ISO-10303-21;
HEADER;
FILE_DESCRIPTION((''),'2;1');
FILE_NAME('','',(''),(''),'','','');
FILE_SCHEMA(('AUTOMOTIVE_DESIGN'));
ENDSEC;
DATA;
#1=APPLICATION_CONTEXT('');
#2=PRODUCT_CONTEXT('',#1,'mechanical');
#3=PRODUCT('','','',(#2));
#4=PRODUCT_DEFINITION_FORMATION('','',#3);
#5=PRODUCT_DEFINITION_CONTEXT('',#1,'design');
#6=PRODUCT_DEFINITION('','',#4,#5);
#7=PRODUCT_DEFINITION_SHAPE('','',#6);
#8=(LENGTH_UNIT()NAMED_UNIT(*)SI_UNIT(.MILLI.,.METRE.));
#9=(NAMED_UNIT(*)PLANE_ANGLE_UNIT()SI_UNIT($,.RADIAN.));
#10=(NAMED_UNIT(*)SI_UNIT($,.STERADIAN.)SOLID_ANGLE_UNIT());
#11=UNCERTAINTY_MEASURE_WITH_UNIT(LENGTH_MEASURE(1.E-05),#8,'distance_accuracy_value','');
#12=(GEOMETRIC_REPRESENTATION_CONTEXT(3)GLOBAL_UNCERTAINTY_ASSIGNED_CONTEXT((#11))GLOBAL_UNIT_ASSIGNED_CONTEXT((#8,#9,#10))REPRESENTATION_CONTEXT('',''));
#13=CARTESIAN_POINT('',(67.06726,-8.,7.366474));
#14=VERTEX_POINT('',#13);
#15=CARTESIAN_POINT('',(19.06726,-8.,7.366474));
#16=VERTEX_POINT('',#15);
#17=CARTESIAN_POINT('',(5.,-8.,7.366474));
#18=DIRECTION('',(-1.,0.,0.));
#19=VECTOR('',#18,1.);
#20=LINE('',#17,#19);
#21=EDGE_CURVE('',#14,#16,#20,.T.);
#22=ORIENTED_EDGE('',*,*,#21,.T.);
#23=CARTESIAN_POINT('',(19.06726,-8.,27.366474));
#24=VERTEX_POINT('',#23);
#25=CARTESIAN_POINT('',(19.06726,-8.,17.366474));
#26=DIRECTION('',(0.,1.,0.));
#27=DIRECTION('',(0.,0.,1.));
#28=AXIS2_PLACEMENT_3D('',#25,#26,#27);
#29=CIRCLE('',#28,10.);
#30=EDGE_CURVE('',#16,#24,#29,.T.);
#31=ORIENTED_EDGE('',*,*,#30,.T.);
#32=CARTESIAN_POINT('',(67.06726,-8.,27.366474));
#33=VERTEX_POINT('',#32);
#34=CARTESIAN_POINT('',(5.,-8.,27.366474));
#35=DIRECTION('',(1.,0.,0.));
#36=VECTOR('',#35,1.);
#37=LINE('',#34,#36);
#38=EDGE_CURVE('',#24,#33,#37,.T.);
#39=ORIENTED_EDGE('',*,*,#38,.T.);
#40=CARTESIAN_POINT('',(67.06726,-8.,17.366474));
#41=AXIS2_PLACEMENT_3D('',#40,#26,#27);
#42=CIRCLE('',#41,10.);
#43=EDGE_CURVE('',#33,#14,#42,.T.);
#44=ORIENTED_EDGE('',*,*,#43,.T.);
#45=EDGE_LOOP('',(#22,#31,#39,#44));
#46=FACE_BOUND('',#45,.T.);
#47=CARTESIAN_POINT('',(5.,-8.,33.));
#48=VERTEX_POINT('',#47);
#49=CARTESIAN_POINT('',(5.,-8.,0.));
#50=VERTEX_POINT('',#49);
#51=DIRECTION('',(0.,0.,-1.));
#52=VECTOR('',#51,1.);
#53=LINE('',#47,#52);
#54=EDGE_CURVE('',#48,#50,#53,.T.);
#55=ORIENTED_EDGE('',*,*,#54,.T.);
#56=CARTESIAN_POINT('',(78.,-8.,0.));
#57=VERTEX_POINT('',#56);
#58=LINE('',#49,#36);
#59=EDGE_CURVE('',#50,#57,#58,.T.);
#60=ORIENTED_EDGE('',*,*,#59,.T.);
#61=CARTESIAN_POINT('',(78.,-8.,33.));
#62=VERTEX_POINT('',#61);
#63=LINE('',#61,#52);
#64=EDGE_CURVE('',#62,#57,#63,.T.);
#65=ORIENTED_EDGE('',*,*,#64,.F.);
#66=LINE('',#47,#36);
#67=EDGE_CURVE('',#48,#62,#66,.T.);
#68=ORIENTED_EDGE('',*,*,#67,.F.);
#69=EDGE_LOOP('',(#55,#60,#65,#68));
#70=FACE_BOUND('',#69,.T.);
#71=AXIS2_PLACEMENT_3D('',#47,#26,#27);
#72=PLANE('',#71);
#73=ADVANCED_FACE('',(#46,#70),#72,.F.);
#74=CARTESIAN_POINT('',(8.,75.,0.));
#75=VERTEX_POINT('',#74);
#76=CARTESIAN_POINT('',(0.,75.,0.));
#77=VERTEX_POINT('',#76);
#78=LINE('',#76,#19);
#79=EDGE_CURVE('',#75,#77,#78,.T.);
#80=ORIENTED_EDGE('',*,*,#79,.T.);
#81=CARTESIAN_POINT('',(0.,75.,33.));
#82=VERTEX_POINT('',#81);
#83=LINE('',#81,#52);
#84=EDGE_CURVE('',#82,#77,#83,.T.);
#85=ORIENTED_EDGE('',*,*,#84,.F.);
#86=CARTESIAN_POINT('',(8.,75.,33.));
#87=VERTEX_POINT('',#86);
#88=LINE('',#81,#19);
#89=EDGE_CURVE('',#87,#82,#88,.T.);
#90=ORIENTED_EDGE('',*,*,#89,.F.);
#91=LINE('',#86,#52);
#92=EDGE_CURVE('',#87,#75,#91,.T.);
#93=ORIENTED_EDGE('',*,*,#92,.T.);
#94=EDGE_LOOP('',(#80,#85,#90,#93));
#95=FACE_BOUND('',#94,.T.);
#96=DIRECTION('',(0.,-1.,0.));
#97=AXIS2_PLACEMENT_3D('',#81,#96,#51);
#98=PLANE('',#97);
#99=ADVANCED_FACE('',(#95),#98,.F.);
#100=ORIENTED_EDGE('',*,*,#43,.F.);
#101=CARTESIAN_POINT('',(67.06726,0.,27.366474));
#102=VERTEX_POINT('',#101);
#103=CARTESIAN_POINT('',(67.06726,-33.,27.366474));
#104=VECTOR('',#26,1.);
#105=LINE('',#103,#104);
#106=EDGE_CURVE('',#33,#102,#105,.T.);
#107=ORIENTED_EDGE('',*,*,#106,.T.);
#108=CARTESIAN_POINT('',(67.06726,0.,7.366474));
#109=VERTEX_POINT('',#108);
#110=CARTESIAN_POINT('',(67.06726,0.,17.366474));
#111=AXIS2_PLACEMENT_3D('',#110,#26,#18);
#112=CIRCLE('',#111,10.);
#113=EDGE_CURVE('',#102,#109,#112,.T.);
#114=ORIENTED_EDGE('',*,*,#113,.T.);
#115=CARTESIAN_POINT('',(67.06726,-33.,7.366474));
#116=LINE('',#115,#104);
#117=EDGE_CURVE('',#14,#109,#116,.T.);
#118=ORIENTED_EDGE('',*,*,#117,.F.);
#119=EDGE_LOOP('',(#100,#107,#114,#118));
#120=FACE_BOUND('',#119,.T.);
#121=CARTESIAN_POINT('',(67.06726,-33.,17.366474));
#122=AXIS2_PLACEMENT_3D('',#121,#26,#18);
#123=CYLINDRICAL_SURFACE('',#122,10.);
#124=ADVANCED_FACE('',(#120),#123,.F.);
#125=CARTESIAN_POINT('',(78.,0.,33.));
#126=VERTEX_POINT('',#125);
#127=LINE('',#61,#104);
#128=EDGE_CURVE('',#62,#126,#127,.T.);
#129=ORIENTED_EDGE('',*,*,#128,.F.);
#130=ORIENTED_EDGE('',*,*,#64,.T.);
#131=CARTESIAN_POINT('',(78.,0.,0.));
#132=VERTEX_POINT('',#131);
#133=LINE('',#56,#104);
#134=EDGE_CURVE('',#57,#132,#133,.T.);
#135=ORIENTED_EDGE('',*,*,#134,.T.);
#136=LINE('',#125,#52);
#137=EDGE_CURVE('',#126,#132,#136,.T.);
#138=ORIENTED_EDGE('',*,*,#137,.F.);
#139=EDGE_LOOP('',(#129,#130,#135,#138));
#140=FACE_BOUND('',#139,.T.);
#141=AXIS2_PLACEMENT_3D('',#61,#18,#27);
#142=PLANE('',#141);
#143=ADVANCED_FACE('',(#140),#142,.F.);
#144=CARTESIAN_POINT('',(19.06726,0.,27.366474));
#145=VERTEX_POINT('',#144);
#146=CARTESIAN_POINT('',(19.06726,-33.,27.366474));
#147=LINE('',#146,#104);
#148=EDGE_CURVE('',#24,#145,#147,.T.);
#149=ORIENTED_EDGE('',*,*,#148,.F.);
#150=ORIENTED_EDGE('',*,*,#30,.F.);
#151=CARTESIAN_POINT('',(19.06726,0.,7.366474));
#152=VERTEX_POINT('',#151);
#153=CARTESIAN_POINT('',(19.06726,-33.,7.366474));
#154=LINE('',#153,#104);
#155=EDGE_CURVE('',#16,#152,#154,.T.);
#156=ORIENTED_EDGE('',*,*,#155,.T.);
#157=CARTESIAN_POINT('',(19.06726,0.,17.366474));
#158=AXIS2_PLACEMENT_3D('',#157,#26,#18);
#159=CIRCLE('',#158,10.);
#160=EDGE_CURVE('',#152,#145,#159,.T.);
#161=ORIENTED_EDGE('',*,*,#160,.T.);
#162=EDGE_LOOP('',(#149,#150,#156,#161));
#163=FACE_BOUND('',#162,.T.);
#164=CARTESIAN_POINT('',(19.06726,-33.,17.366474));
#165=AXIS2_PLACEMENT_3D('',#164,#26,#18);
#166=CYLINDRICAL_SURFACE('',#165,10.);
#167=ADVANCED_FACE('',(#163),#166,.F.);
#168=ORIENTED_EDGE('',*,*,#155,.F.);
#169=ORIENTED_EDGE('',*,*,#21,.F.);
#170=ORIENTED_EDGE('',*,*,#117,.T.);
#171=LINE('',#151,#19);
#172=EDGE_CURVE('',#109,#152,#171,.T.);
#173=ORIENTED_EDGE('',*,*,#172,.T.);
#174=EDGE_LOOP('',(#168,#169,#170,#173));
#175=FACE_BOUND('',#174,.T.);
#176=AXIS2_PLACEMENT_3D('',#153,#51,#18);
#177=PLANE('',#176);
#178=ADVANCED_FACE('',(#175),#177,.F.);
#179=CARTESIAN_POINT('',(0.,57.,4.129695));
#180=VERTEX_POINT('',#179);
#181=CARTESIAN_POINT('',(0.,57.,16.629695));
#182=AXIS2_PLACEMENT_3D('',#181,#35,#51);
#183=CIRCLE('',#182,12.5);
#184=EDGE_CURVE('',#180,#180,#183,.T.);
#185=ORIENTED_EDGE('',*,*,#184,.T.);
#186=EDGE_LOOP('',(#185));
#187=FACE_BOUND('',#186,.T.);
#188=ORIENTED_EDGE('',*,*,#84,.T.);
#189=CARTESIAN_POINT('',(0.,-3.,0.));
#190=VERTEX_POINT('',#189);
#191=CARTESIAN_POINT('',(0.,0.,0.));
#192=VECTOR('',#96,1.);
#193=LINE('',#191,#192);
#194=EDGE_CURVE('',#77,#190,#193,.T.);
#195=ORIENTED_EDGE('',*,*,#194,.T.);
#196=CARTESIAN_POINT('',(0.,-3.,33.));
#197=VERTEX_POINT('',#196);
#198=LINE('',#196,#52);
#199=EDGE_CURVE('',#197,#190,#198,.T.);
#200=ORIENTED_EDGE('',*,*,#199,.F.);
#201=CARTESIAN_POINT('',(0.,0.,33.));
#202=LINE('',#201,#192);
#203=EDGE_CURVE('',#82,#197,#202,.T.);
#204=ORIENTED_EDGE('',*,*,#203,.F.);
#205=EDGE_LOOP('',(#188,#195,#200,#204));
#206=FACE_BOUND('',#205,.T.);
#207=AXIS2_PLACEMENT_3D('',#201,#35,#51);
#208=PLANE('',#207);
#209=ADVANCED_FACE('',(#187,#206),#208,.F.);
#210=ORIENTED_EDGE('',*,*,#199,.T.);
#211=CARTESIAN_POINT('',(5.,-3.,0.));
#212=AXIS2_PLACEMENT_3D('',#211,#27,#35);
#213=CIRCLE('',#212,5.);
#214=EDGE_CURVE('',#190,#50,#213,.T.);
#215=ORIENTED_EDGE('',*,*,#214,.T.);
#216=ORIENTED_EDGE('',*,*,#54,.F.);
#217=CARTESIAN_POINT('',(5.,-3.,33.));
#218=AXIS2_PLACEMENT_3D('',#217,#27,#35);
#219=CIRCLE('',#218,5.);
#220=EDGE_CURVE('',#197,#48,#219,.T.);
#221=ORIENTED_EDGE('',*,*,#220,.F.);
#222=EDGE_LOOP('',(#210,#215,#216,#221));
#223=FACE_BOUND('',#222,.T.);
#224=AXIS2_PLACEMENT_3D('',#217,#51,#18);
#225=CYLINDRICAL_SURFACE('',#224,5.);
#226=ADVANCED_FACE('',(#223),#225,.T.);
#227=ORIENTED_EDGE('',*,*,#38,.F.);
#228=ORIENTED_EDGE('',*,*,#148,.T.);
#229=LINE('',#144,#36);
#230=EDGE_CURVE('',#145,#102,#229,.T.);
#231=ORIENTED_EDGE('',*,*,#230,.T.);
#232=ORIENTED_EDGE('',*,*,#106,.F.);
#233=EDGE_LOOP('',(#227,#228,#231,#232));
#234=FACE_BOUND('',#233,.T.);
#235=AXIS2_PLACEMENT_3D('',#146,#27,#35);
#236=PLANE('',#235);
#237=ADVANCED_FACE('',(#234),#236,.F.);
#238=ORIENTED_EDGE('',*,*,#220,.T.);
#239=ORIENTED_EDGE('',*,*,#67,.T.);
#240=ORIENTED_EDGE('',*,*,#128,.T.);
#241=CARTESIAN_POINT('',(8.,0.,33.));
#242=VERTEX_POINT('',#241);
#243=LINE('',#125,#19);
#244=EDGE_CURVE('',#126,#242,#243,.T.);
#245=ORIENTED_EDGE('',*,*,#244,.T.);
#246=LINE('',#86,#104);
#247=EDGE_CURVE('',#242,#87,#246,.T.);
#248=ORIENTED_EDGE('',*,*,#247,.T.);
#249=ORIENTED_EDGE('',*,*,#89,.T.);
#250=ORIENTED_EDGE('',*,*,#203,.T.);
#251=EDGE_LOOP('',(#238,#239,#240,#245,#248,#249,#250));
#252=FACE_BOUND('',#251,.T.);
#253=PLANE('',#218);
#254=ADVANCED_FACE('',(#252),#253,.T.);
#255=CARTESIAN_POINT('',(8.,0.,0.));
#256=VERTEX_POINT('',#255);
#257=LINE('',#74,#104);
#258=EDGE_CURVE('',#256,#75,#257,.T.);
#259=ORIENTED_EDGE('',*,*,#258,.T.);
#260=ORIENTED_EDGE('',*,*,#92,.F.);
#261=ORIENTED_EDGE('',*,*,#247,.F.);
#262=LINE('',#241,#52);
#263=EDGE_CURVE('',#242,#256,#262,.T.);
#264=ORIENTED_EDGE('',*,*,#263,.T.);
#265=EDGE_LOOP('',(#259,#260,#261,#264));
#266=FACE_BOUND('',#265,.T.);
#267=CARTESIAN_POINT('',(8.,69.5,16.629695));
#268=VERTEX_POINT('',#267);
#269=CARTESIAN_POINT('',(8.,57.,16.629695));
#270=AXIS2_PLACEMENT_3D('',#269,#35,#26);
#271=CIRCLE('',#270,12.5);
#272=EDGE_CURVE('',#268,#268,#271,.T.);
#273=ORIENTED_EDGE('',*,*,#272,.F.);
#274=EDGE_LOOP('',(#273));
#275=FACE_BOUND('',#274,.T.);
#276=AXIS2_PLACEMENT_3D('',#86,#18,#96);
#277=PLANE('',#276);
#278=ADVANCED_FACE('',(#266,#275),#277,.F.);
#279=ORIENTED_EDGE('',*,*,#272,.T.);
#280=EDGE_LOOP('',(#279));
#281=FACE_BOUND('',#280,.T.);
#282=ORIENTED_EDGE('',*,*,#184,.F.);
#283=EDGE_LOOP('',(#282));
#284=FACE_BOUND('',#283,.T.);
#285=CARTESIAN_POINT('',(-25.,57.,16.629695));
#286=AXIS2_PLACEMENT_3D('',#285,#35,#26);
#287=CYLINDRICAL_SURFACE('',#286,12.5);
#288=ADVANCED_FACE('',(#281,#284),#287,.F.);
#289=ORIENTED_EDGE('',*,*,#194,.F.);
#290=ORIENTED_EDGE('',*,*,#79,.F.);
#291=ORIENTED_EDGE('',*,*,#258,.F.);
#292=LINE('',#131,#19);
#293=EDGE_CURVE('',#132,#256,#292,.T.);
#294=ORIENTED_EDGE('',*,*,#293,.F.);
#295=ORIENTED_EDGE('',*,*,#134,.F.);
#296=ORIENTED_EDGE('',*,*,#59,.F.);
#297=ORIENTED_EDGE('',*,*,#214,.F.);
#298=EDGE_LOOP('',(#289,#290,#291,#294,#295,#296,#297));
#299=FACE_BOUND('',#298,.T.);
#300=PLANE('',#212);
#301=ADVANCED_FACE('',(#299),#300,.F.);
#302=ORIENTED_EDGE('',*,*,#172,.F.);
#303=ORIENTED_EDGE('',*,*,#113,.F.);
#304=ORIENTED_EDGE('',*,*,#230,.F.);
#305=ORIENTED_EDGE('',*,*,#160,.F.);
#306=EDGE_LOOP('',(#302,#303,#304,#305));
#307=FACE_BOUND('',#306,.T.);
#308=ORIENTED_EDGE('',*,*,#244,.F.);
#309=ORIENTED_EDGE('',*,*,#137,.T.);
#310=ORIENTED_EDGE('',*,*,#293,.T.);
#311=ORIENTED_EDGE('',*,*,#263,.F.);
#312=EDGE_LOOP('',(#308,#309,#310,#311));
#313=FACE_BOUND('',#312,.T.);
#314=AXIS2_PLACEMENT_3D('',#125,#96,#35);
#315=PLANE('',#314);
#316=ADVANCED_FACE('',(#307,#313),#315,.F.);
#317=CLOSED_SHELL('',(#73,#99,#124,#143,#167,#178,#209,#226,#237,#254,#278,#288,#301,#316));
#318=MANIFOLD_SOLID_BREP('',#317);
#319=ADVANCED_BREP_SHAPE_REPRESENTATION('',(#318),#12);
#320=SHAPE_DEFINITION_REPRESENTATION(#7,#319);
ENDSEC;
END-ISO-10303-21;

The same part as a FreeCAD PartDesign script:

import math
import FreeCAD as App
import Part
import Sketcher

V = App.Vector
Q = App.Units.Quantity

doc = App.newDocument("Part")
body = doc.addObject("PartDesign::Body", "Body")

# Sketch on XY plane
sketch1 = body.newObject("Sketcher::SketchObject", "Sketch")
sketch1.AttachmentSupport = (doc.getObject("XY_Plane"), [""])
sketch1.MapMode = "FlatFace"
sketch1.addGeometry([
    Part.LineSegment(V(8, 75, 0), V(0, 75, 0)),  # 0
    Part.LineSegment(V(0, 75, 0), V(0, -3, 0)),  # 1
    Part.ArcOfCircle(Part.Circle(V(5, -3, 0), V(0, 0, 1), 5), math.radians(180), math.radians(270)),  # 2
    Part.LineSegment(V(5, -8, 0), V(78, -8, 0)),  # 3
    Part.LineSegment(V(78, -8, 0), V(78, 0, 0)),  # 4
    Part.LineSegment(V(78, 0, 0), V(8, 0, 0)),  # 5
    Part.LineSegment(V(8, 0, 0), V(8, 75, 0)),  # 6
], False)
sketch1.addConstraint([
    Sketcher.Constraint("Coincident", 0, 2, 1, 1),
    Sketcher.Constraint("Tangent", 1, 2, 2, 1),
    Sketcher.Constraint("Tangent", 2, 2, 3, 1),
    Sketcher.Constraint("Coincident", 3, 2, 4, 1),
    Sketcher.Constraint("Coincident", 4, 2, 5, 1),
    Sketcher.Constraint("Coincident", 5, 2, 6, 1),
    Sketcher.Constraint("Coincident", 6, 2, 0, 1),
    Sketcher.Constraint("Horizontal", 0),
    Sketcher.Constraint("Vertical", 1),
    Sketcher.Constraint("Horizontal", 3),
    Sketcher.Constraint("Vertical", 4),
    Sketcher.Constraint("Horizontal", 5),
    Sketcher.Constraint("Vertical", 6),
    Sketcher.Constraint("PointOnObject", 0, 2, -2),
    Sketcher.Constraint("PointOnObject", 4, 2, -1),
    Sketcher.Constraint("Equal", 0, 4),
    Sketcher.Constraint("Radius", 2, Q("5 mm")),
    Sketcher.Constraint("DistanceX", 0, 2, 0, 1, Q("8 mm")),
    Sketcher.Constraint("DistanceX", 3, 1, 3, 2, Q("73 mm")),
    Sketcher.Constraint("DistanceY", 1, 2, 1, 1, Q("78 mm")),
])
pad1 = body.newObject("PartDesign::Pad", "Pad")
pad1.Profile = sketch1
pad1.Length = 33

# Sketch on YZ plane
sketch2 = body.newObject("Sketcher::SketchObject", "Sketch001")
sketch2.AttachmentSupport = (doc.getObject("YZ_Plane"), [""])
sketch2.MapMode = "FlatFace"
sketch2.AttachmentOffset = App.Placement(V(0, 0, 8), App.Rotation())
sketch2.addGeometry(Part.Circle(V(57, 17, 0), V(0, 0, 1), 12), False)
sketch2.addConstraint([
    Sketcher.Constraint("Diameter", 0, Q("25 mm")),
    Sketcher.Constraint("DistanceX", -1, 1, 0, 3, Q("57 mm")),
    Sketcher.Constraint("DistanceY", -1, 1, 0, 3, Q("16.629695 mm")),
])
pocket1 = body.newObject("PartDesign::Pocket", "Pocket")
pocket1.Profile = sketch2
pocket1.Length = 33

# Sketch on XZ plane
sketch3 = body.newObject("Sketcher::SketchObject", "Sketch002")
sketch3.AttachmentSupport = (doc.getObject("XZ_Plane"), [""])
sketch3.MapMode = "FlatFace"
sketch3.addGeometry([
    Part.LineSegment(V(67, 7, 0), V(19, 7, 0)),
    Part.ArcOfCircle(Part.Circle(V(19, 17, 0), V(0, 0, 1), 10), math.radians(90), math.radians(270)),
    Part.LineSegment(V(19, 27, 0), V(67, 27, 0)),
    Part.ArcOfCircle(Part.Circle(V(67, 17, 0), V(0, 0, 1), 10), math.radians(-90), math.radians(90)),
], False)
sketch3.addConstraint([
    Sketcher.Constraint("Tangent", 0, 2, 1, 2),
    Sketcher.Constraint("Tangent", 1, 1, 2, 1),
    Sketcher.Constraint("Tangent", 2, 2, 3, 2),
    Sketcher.Constraint("Tangent", 3, 1, 0, 1),
    Sketcher.Constraint("Horizontal", 0),
    Sketcher.Constraint("Horizontal", 2),
    Sketcher.Constraint("Radius", 1, Q("10 mm")),
    Sketcher.Constraint("DistanceX", 0, 2, 0, 1, Q("48 mm")),
    Sketcher.Constraint("DistanceX", -1, 1, 1, 3, Q("19.06726 mm")),
    Sketcher.Constraint("DistanceY", -1, 1, 1, 3, Q("17.366474 mm")),
])
pocket2 = body.newObject("PartDesign::Pocket", "Pocket001")
pocket2.Profile = sketch3
pocket2.Length = 33
pocket2.Reversed = True

doc.recompute()
